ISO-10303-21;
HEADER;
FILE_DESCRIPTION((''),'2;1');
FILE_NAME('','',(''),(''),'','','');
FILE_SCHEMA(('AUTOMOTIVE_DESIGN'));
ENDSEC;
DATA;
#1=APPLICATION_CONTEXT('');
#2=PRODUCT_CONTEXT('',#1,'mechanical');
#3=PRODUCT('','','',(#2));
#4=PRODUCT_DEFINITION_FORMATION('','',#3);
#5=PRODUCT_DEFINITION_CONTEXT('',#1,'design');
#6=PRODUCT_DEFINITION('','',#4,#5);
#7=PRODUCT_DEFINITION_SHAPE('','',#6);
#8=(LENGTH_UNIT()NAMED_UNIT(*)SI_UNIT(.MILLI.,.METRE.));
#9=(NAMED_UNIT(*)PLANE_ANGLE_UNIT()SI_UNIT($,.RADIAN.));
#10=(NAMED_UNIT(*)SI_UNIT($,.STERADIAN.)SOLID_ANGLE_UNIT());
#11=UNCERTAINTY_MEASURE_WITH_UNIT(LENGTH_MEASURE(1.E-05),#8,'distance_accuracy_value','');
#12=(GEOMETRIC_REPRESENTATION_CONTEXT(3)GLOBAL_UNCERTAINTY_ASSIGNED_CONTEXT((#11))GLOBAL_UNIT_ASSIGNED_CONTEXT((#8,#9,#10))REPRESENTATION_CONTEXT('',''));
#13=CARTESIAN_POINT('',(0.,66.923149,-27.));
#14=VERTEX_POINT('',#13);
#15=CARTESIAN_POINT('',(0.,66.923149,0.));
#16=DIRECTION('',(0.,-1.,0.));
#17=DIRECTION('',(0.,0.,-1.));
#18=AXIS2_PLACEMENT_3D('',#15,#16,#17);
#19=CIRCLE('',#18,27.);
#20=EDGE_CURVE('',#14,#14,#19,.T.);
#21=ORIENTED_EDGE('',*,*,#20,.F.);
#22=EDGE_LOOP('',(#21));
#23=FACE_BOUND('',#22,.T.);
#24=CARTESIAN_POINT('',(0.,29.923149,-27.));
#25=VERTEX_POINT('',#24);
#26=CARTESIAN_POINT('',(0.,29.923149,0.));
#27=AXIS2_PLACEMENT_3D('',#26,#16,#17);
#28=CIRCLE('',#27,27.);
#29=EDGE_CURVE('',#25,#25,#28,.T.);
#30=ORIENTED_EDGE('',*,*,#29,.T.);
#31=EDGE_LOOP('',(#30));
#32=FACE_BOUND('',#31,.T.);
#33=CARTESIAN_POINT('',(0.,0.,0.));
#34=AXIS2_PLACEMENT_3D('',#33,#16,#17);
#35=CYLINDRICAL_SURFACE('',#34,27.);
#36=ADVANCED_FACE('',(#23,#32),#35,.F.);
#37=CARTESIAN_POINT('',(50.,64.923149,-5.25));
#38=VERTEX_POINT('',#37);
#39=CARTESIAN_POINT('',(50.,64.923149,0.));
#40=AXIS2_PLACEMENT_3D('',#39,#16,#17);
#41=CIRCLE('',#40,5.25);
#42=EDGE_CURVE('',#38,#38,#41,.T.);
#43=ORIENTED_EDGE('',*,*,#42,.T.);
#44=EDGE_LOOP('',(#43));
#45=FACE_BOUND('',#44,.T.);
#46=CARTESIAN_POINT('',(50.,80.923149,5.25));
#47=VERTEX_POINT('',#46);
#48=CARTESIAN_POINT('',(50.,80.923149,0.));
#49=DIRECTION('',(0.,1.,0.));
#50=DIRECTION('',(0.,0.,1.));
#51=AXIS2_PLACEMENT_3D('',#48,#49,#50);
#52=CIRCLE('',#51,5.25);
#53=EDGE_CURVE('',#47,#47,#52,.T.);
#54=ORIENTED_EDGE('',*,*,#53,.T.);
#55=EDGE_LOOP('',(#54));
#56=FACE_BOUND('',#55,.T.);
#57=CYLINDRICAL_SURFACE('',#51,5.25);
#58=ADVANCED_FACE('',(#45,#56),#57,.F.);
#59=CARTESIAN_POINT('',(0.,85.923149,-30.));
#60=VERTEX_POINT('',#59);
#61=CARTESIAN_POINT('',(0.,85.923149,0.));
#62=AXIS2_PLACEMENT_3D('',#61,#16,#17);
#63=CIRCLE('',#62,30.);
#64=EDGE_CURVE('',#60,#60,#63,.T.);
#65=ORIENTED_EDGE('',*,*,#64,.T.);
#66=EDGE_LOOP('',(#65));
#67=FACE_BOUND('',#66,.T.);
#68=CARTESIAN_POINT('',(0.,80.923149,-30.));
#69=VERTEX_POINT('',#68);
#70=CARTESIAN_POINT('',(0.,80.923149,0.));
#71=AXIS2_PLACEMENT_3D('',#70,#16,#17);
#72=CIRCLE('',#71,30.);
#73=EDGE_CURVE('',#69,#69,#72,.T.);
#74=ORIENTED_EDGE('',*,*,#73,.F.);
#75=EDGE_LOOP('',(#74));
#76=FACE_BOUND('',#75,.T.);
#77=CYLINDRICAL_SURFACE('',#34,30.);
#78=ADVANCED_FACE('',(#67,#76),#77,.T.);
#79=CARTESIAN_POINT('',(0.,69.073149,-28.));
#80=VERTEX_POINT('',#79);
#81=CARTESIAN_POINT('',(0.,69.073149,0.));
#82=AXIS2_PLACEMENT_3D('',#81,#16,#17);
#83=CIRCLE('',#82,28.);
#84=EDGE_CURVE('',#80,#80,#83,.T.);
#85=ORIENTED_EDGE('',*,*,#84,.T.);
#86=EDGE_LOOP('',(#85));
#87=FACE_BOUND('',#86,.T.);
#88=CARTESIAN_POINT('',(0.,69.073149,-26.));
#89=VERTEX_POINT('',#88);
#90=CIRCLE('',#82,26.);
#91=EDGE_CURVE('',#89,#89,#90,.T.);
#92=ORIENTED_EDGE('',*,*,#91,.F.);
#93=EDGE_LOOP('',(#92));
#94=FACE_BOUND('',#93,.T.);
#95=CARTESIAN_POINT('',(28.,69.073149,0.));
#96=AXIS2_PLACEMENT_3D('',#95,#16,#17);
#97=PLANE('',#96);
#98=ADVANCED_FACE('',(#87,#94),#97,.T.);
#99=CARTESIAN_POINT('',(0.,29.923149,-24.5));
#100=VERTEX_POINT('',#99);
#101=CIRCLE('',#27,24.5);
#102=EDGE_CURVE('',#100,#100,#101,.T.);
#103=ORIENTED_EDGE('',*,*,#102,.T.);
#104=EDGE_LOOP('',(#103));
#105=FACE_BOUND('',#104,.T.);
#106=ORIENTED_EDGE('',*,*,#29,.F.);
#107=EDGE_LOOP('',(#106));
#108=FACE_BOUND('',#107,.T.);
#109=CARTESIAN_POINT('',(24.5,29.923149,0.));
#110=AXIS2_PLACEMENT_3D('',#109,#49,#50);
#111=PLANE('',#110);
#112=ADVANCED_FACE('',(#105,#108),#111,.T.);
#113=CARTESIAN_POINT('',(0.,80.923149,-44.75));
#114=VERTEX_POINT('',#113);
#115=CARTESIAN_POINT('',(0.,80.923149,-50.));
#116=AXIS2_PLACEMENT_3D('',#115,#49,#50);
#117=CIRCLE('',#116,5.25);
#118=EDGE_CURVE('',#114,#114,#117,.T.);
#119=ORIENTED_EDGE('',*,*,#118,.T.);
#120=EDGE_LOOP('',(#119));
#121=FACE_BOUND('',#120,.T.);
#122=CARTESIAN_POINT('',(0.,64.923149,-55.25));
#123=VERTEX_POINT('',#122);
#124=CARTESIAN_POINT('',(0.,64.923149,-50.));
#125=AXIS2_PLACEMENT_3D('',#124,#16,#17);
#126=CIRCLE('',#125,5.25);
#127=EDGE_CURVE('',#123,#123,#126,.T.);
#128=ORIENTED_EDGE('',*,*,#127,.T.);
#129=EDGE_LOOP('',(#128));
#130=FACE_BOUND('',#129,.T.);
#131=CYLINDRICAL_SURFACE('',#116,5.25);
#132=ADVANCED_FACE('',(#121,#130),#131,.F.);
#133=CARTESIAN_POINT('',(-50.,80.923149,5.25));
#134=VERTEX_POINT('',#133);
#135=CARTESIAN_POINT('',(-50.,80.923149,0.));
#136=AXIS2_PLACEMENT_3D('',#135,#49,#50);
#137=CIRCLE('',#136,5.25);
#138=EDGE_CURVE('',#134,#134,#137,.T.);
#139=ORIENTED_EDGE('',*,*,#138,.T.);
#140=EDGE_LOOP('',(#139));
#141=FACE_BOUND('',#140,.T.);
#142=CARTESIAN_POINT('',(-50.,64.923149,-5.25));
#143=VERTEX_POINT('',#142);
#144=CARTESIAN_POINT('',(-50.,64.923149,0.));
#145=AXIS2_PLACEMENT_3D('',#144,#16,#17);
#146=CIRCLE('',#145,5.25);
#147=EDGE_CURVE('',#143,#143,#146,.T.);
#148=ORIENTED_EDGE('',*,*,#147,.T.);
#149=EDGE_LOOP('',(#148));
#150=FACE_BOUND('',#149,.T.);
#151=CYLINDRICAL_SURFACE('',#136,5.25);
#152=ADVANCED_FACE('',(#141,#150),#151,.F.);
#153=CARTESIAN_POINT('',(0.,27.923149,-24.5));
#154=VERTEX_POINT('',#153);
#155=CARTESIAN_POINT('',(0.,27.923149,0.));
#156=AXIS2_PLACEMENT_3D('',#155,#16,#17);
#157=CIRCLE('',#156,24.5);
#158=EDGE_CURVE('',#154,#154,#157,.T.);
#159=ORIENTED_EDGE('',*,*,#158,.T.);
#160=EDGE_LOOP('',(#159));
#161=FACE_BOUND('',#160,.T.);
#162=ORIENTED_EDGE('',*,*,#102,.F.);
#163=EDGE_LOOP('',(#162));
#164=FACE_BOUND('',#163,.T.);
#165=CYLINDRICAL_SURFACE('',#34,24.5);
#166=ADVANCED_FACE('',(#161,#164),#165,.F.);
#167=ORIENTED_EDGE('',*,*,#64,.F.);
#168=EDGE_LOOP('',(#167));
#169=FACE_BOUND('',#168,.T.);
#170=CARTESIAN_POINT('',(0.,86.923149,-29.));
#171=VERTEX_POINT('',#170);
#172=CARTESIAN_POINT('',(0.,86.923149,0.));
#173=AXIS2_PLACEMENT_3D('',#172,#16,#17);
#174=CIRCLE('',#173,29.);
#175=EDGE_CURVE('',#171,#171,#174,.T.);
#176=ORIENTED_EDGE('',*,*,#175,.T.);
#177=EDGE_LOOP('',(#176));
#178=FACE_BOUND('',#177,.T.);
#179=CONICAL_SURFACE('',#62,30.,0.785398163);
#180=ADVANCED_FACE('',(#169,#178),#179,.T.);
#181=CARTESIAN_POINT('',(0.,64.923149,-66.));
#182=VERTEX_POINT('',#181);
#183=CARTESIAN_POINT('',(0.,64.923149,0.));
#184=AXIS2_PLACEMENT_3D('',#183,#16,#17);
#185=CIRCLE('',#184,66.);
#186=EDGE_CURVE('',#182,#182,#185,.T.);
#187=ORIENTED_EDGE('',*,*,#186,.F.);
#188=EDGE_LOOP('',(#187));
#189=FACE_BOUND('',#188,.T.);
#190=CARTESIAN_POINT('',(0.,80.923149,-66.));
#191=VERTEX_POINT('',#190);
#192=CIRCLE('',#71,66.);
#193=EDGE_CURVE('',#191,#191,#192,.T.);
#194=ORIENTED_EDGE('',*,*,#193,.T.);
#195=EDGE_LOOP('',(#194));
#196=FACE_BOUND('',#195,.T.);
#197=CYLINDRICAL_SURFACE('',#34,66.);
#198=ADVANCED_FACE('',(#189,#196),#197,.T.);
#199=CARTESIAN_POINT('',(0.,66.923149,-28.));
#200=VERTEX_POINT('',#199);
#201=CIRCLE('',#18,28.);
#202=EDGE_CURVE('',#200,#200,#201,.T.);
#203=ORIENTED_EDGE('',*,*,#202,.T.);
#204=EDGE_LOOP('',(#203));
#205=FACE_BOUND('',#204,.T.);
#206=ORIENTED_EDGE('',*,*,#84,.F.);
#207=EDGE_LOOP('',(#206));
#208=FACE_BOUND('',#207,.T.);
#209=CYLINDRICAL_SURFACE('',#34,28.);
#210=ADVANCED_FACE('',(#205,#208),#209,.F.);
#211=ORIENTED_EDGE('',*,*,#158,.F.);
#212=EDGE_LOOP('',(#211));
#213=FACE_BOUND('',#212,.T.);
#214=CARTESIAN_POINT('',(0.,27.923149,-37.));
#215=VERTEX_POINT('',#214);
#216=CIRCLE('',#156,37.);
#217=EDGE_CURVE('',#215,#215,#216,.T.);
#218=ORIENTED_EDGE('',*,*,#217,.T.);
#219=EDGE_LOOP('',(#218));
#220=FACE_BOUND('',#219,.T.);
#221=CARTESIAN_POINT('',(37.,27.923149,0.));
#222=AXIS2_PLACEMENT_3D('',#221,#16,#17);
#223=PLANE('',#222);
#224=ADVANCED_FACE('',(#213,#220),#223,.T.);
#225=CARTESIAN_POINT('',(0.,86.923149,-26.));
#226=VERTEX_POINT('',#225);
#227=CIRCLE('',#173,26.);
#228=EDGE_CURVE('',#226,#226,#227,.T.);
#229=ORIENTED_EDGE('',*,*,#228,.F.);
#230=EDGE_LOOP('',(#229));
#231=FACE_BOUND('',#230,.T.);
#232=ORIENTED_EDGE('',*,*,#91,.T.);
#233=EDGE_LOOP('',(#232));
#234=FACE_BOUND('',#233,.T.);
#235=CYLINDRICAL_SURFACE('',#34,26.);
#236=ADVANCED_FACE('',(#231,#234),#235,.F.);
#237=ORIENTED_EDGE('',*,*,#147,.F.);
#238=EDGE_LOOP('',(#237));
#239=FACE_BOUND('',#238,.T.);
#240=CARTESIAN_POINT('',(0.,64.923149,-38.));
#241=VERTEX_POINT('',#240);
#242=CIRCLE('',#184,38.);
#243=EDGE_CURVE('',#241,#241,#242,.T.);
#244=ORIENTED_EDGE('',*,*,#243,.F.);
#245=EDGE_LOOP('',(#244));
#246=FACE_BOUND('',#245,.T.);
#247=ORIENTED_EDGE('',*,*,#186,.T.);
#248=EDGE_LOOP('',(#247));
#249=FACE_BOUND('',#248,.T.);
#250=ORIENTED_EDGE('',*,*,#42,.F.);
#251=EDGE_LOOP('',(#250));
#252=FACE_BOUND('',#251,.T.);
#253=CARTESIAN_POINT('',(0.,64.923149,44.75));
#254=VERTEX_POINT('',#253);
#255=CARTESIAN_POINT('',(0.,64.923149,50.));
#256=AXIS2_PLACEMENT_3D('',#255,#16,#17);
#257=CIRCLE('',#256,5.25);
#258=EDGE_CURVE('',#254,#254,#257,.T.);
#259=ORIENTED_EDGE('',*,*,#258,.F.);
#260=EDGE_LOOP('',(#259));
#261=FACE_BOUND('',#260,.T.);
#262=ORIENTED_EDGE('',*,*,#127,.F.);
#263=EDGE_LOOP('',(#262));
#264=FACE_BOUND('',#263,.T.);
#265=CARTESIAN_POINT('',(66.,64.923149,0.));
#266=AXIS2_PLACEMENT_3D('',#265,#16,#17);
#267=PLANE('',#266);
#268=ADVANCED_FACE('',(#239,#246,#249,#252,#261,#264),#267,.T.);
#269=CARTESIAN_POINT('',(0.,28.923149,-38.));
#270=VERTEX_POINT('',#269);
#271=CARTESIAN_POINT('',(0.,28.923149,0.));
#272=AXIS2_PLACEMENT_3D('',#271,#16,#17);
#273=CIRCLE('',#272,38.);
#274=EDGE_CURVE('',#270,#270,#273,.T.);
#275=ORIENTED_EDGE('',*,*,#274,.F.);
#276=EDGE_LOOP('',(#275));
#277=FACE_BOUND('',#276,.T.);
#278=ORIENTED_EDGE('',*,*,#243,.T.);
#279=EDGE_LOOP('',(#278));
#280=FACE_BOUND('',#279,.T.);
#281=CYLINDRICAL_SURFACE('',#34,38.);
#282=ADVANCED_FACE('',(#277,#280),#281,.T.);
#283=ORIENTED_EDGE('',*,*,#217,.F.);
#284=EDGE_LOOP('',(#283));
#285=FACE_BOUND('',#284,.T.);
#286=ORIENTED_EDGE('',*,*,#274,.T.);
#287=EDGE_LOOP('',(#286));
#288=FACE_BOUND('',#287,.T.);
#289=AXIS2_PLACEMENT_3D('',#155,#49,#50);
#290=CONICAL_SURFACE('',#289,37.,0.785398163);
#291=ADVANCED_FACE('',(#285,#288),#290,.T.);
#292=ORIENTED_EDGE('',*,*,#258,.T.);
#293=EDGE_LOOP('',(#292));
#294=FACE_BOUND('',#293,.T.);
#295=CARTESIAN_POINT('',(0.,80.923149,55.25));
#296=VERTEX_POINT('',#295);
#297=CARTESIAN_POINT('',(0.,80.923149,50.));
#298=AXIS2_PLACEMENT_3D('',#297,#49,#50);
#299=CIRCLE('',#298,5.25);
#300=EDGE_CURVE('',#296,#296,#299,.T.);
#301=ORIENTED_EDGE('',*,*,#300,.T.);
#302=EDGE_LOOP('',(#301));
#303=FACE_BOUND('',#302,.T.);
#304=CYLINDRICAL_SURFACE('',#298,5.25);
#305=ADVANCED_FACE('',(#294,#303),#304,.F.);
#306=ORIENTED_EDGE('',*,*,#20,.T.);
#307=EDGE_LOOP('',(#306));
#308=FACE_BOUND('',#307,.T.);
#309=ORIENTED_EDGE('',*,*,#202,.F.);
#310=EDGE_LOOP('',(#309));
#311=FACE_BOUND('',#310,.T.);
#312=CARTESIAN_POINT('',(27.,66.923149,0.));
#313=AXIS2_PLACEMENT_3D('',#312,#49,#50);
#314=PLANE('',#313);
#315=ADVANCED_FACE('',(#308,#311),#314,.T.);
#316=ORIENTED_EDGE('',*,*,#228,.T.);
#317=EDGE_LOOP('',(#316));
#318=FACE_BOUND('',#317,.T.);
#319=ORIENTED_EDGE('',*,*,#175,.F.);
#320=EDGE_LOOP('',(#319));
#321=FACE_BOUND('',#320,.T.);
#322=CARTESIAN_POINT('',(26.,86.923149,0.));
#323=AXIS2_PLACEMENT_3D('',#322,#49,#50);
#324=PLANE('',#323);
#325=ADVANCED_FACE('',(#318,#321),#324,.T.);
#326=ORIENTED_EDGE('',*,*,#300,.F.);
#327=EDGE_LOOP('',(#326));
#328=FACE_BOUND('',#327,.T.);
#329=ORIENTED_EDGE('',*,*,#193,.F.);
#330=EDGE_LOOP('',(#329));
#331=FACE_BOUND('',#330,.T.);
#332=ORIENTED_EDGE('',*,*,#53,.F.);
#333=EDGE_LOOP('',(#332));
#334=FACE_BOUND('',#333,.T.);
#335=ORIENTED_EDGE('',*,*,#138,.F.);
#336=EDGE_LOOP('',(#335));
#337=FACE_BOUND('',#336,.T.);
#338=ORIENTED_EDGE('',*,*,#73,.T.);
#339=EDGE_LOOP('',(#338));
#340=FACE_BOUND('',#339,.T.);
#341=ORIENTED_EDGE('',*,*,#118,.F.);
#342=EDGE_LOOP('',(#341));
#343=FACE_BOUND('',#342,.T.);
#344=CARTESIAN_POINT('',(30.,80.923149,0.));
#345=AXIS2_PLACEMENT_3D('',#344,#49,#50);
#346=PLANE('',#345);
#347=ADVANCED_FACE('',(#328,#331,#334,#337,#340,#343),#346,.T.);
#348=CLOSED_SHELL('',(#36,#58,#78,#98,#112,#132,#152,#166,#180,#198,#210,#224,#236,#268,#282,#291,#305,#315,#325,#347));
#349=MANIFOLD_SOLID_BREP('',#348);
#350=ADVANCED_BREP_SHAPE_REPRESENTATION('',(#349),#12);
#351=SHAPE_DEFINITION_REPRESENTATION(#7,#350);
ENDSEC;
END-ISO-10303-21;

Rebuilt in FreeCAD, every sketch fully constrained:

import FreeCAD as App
import Part
import Sketcher
Q = App.Units.Quantity


def add_polygon(sketch, points):
    """Adds a closed chain of lines whose ends are joined by coincident constraints."""
    first, n = sketch.GeometryCount, len(points)
    for a, b in zip(points, points[1:] + points[:1]):
        sketch.addGeometry(Part.LineSegment(App.Vector(*a, 0), App.Vector(*b, 0)), False)
    for i in range(n):
        sketch.addConstraint(Sketcher.Constraint("Coincident", first + i, 2, first + (i + 1) % n, 1))

doc = App.newDocument("Part")
params = doc.addObject("Spreadsheet::Sheet", "Params")
for row, (alias, value) in enumerate([
    ("sketch1_width", "36 mm"),
    ("sketch1_width2", "3 mm"),
    ("sketch1_width3", "2 mm"),
    ("sketch1_width4", "1 mm"),
    ("sketch1_width5", "28 mm"),
    ("revolution_angle", "360 deg"),
    ("sketch2_diameter", "10.5 mm"),
    ("hole_diameter", "10.5 mm"),
], start=1):
    params.set(f"A{row}", alias)
    params.set(f"B{row}", "=" + value)
    params.setAlias(f"B{row}", alias)

body = doc.addObject("PartDesign::Body", "Body")

sketch1 = doc.addObject("Sketcher::SketchObject", "Sketch")
body.addObject(sketch1)
sketch1.AttachmentSupport = (doc.XY_Plane, [""])
sketch1.MapMode = "FlatFace"
add_polygon(sketch1, [(66, 80.9), (30, 80.9), (30, 85.9), (29, 86.9), (26, 86.9), (26, 69.1), (28, 69.1), (28, 66.9), (27, 66.9), (27, 29.9), (24.5, 29.9), (24.5, 27.9), (37, 27.9), (38, 28.9), (38, 64.9), (66, 64.9)])
sketch1.addConstraint([
    Sketcher.Constraint("Horizontal", 0),
    Sketcher.Constraint("Vertical", 1),
    Sketcher.Constraint("Horizontal", 3),
    Sketcher.Constraint("Vertical", 4),
    Sketcher.Constraint("Horizontal", 5),
    Sketcher.Constraint("Vertical", 6),
    Sketcher.Constraint("Horizontal", 7),
    Sketcher.Constraint("Vertical", 8),
    Sketcher.Constraint("Horizontal", 9),
    Sketcher.Constraint("Vertical", 10),
    Sketcher.Constraint("Horizontal", 11),
    Sketcher.Constraint("Vertical", 13),
    Sketcher.Constraint("Horizontal", 14),
    Sketcher.Constraint("Vertical", 15),
    Sketcher.Constraint("Perpendicular", 2, 12),
    Sketcher.Constraint("Equal", 5, 10),
    Sketcher.Constraint("Equal", 0, 13),
    Sketcher.Constraint("Equal", 2, 12),
    Sketcher.Constraint("DistanceX", 0, 2, 0, 1, 36.0),
    Sketcher.Constraint("DistanceX", 3, 2, 3, 1, 3.0),
    Sketcher.Constraint("DistanceX", 5, 1, 5, 2, 2.0),
    Sketcher.Constraint("DistanceX", 7, 2, 7, 1, 1.0),
    Sketcher.Constraint("DistanceX", 14, 1, 14, 2, 28.0),
    Sketcher.Constraint("DistanceY", 1, 1, 1, 2, 5.0),
    Sketcher.Constraint("DistanceY", 8, 2, 8, 1, 37.0),
    Sketcher.Constraint("DistanceY", 15, 1, 15, 2, 16.0),
    Sketcher.Constraint("Angle", 2, Q("135 deg")),
    Sketcher.Constraint("DistanceX", 9, 2, 9, 1, 2.5),
    Sketcher.Constraint("DistanceX", -1, 1, 0, 2, 30.0),
    Sketcher.Constraint("DistanceX", -1, 1, 2, 2, 29.0),
    Sketcher.Constraint("DistanceY", 4, 2, 4, 1, 17.85),
    Sketcher.Constraint("DistanceY", -1, 1, 0, 2, 80.923149),
])
sketch1.setExpression("Constraints[34]", "Params.sketch1_width")
sketch1.setExpression("Constraints[35]", "Params.sketch1_width2")
sketch1.setExpression("Constraints[36]", "Params.sketch1_width3")
sketch1.setExpression("Constraints[37]", "Params.sketch1_width4")
sketch1.setExpression("Constraints[38]", "Params.sketch1_width5")
revolution = doc.addObject("PartDesign::Revolution", "Revolution")
body.addObject(revolution)
revolution.Profile = sketch1
revolution.ReferenceAxis = (sketch1, ["V_Axis"])
revolution.setExpression("Angle", "Params.revolution_angle")

sketch2 = doc.addObject("Sketcher::SketchObject", "Sketch001")
body.addObject(sketch2)
sketch2.AttachmentSupport = (doc.XZ_Plane, [""])
sketch2.MapMode = "FlatFace"
sketch2.AttachmentOffset = App.Placement(App.Vector(0, 0, -80.923149), App.Rotation())
sketch2.addGeometry([
    Part.Circle(App.Vector(-50, 0, 0), App.Vector(0, 0, 1), 5),
    Part.Circle(App.Vector(0, -50, 0), App.Vector(0, 0, 1), 5),
    Part.Circle(App.Vector(50, 0, 0), App.Vector(0, 0, 1), 5),
    Part.Circle(App.Vector(0, 50, 0), App.Vector(0, 0, 1), 5),
], False)
sketch2.addConstraint([
    Sketcher.Constraint("Equal", 0, 1),
    Sketcher.Constraint("Equal", 1, 2),
    Sketcher.Constraint("Equal", 2, 3),
    Sketcher.Constraint("Symmetric", 0, 3, 2, 3, -1, 1),
    Sketcher.Constraint("Symmetric", 1, 3, 3, 3, -1, 1),
    Sketcher.Constraint("PointOnObject", 0, 3, -1),
    Sketcher.Constraint("PointOnObject", 1, 3, -2),
    Sketcher.Constraint("Diameter", 0, 10.5),
    Sketcher.Constraint("DistanceX", 0, 3, -1, 1, 50.0),
    Sketcher.Constraint("DistanceY", 1, 3, -1, 1, 50.0),
])
sketch2.setExpression("Constraints[7]", "Params.sketch2_diameter")
doc.recompute()
hole = doc.addObject("PartDesign::Hole", "Hole")
body.addObject(hole)
hole.Profile = sketch2
hole.ThreadType = "None"
hole.setExpression("Diameter", "Params.hole_diameter")
hole.DepthType = "ThroughAll"
hole.Reversed = True

doc.recompute()
